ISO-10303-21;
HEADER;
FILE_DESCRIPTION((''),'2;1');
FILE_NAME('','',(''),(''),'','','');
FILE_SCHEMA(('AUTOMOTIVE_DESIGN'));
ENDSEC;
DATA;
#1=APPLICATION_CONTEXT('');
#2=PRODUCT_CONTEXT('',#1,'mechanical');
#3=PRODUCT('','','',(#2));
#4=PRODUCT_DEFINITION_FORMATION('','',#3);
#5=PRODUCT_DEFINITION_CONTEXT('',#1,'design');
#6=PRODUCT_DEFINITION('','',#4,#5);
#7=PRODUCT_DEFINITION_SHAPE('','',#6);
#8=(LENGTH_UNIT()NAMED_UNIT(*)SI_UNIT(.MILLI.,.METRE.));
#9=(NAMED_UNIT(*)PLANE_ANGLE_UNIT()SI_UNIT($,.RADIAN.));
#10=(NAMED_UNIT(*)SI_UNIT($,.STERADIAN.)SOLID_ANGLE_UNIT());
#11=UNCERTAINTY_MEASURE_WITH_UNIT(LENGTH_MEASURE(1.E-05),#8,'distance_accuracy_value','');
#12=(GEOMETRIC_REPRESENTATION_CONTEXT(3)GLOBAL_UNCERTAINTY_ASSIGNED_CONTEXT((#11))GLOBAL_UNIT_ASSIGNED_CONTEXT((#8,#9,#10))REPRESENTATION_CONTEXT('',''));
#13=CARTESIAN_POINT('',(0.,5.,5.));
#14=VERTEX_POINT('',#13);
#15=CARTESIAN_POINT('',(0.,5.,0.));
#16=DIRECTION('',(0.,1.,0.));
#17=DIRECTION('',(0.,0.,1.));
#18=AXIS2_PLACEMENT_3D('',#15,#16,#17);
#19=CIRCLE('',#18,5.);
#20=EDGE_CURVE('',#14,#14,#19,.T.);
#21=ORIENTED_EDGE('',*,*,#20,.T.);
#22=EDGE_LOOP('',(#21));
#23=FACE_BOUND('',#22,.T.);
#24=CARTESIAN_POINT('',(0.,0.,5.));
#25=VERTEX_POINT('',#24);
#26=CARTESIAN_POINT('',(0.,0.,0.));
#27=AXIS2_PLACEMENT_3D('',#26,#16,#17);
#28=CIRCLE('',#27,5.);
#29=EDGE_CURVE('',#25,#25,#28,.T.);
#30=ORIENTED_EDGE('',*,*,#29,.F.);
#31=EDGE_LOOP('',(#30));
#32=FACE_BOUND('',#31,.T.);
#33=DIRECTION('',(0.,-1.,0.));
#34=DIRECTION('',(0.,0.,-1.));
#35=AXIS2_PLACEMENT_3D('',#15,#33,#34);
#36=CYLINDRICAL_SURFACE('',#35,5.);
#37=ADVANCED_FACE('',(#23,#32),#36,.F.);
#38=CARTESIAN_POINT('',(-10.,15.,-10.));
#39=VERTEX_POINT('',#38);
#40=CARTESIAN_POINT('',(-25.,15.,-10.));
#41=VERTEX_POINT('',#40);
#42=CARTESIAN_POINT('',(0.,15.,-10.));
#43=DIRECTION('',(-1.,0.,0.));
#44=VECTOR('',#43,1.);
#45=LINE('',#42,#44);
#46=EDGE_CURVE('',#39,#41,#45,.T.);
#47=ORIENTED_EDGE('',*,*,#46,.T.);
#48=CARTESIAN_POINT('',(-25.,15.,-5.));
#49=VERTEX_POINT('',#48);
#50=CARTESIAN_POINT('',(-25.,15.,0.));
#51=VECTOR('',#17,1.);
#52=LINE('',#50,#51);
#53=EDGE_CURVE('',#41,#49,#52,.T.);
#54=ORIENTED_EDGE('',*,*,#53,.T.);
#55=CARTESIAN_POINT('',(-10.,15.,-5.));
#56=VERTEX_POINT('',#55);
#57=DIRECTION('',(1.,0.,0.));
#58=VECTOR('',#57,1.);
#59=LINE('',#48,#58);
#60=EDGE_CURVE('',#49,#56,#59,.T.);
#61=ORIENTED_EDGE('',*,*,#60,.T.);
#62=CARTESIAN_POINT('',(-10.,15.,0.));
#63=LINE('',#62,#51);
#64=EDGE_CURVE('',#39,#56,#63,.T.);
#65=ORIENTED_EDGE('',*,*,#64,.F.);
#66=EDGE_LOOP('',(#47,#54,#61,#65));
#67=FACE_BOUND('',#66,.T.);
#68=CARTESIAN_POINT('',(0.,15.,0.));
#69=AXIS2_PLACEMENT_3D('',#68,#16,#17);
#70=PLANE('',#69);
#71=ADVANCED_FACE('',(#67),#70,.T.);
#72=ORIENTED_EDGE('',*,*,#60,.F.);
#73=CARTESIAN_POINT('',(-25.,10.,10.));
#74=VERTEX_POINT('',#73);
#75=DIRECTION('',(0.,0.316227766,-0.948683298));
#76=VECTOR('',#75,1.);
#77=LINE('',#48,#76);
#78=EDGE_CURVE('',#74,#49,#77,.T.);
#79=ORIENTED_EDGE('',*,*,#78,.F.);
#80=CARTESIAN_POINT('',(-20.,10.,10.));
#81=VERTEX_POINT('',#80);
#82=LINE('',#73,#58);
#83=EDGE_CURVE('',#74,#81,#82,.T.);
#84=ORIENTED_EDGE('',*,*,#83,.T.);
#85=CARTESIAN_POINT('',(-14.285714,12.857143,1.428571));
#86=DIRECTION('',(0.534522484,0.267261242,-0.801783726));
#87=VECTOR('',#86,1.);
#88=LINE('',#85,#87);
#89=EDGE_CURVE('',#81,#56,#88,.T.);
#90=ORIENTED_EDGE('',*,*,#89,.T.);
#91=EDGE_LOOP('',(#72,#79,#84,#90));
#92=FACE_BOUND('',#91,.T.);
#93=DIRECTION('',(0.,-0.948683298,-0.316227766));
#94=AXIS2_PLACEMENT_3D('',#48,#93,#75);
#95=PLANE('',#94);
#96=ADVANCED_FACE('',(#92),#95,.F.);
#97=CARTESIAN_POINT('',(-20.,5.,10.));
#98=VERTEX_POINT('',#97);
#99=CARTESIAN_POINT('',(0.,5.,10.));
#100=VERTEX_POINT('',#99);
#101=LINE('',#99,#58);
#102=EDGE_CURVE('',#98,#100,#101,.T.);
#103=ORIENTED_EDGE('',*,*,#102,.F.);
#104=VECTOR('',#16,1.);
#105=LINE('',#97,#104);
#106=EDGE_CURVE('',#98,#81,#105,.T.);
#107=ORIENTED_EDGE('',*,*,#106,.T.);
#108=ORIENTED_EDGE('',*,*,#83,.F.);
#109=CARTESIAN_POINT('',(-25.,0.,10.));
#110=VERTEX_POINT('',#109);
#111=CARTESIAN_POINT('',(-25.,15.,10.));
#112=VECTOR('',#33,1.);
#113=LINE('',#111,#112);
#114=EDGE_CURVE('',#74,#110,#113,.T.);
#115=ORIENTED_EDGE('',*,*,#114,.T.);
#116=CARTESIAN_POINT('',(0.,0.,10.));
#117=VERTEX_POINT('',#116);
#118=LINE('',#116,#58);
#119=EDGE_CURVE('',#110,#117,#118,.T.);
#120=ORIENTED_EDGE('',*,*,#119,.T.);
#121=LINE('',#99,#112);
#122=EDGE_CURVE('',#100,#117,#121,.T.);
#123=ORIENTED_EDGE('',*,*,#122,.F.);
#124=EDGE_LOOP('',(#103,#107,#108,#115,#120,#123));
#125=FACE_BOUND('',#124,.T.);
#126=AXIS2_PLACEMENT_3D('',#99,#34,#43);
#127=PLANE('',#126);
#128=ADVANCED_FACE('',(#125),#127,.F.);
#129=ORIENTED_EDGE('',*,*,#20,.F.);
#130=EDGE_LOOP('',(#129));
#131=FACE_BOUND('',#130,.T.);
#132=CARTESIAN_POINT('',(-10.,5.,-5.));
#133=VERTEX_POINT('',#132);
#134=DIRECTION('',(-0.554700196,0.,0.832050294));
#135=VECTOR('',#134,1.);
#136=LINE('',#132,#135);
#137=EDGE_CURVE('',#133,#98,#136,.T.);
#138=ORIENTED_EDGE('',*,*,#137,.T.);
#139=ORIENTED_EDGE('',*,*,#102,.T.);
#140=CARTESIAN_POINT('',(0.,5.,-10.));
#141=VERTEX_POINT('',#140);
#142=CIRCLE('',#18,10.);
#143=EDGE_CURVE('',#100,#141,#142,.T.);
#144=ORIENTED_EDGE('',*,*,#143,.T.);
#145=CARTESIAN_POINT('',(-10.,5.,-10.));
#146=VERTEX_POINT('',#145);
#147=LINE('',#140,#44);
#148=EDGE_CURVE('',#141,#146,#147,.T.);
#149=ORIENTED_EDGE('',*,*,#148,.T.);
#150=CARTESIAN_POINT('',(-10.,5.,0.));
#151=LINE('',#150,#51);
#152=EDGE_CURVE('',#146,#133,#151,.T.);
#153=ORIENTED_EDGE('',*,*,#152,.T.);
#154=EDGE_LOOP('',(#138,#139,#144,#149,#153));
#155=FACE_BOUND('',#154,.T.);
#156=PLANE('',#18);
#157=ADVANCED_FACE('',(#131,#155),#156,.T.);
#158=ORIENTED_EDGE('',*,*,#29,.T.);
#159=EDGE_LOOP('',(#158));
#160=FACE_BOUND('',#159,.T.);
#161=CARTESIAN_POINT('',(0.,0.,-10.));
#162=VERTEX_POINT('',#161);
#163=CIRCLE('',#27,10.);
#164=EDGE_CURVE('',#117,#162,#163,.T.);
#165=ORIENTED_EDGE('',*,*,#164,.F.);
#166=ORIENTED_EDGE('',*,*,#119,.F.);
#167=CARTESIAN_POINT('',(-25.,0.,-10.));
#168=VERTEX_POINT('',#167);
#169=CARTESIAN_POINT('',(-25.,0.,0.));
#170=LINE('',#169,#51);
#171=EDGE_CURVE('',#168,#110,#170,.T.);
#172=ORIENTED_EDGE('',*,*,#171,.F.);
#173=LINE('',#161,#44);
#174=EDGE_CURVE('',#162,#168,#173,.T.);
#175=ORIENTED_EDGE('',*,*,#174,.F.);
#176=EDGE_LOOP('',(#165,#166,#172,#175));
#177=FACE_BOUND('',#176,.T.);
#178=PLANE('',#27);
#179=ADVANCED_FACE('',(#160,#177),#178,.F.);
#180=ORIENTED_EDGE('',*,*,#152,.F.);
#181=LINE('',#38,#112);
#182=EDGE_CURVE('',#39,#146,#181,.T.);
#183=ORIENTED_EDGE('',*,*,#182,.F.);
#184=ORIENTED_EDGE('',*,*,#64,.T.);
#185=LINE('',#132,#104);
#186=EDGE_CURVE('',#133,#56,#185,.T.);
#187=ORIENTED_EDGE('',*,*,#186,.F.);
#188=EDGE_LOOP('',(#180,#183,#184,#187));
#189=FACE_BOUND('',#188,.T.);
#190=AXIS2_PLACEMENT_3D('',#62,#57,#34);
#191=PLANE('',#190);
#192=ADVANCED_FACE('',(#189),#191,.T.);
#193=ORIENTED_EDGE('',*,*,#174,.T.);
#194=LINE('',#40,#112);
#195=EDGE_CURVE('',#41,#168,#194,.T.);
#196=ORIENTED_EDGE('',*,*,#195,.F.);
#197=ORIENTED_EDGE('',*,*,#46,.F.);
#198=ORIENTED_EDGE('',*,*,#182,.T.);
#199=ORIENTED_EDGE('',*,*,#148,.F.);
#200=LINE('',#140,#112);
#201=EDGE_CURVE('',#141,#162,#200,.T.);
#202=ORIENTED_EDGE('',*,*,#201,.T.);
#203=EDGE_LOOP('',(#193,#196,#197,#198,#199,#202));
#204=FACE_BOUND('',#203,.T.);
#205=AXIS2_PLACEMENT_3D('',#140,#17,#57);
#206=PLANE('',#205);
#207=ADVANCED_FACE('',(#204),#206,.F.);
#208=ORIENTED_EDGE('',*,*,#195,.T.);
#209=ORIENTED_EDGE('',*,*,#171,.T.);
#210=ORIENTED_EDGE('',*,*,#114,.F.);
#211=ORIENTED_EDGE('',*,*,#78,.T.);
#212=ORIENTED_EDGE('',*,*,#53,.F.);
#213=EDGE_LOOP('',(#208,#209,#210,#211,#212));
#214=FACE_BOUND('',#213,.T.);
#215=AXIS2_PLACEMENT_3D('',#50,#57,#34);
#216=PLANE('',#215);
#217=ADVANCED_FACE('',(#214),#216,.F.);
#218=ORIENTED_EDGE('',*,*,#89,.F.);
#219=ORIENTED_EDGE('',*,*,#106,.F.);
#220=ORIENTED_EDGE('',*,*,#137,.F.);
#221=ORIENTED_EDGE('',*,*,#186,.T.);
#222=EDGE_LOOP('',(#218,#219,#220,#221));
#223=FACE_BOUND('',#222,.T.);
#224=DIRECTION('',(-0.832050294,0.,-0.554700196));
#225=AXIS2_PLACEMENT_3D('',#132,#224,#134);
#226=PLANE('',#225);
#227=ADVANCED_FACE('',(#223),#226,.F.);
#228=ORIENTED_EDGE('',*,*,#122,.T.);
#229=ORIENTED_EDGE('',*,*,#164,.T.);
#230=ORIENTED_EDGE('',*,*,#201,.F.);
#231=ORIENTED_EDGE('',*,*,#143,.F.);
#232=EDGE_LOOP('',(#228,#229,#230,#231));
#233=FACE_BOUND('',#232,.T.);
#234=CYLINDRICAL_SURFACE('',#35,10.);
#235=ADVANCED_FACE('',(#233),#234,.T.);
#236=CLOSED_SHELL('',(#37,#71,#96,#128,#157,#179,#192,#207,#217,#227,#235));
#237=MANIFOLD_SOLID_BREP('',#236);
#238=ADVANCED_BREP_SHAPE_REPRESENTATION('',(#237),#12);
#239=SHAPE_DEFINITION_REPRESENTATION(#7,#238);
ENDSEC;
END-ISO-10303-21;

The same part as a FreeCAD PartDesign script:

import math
import FreeCAD as App
import Part
import Sketcher
from FreeCAD import Vector
Q = App.Units.Quantity

doc = App.newDocument("Part")
body = doc.addObject("PartDesign::Body", "Body")

sketch1 = body.newObject("Sketcher::SketchObject", "Sketch")
sketch1.AttachmentSupport = (doc.getObject("XZ_Plane"), [""])
sketch1.MapMode = "FlatFace"
sketch1.addGeometry([
    Part.ArcOfCircle(Part.Circle(Vector(0, 0, 0), Vector(0, 0, 1), 10), math.radians(-90), math.radians(90)),
    Part.LineSegment(Vector(0, -10, 0), Vector(-10, -10, 0)),
    Part.LineSegment(Vector(-10, -10, 0), Vector(-10, 10, 0)),
    Part.LineSegment(Vector(-10, 10, 0), Vector(0, 10, 0)),
    Part.Circle(Vector(0, 0, 0), Vector(0, 0, 1), 5),
], False)
sketch1.addConstraint([
    Sketcher.Constraint("Tangent", 0, 1, 1, 1),
    Sketcher.Constraint("Coincident", 1, 2, 2, 1),
    Sketcher.Constraint("Coincident", 2, 2, 3, 1),
    Sketcher.Constraint("Tangent", 3, 2, 0, 2),
    Sketcher.Constraint("Horizontal", 1),
    Sketcher.Constraint("Vertical", 2),
    Sketcher.Constraint("Horizontal", 3),
    Sketcher.Constraint("Coincident", 0, 3, -1, 1),
    Sketcher.Constraint("Coincident", 4, 3, -1, 1),
    Sketcher.Constraint("Diameter", 4, Q("10 mm")),
    Sketcher.Constraint("Radius", 0, Q("10 mm")),
    Sketcher.Constraint("DistanceX", 1, 2, 1, 1, Q("10 mm")),
])
pad1 = body.newObject("PartDesign::Pad", "Pad")
pad1.Profile = sketch1
pad1.Length = 5
pad1.Reversed = True

sketch2 = body.newObject("Sketcher::SketchObject", "Sketch001")
sketch2.AttachmentSupport = (doc.getObject("XZ_Plane"), [""])
sketch2.MapMode = "FlatFace"
sketch2.addGeometry([
    Part.LineSegment(Vector(-25, -10, 0), Vector(-25, 10, 0)),
    Part.LineSegment(Vector(-25, 10, 0), Vector(-10, 10, 0)),
    Part.LineSegment(Vector(-10, 10, 0), Vector(-10, -10, 0)),
    Part.LineSegment(Vector(-10, -10, 0), Vector(-25, -10, 0)),
], False)
sketch2.addConstraint([
    Sketcher.Constraint("Coincident", 0, 2, 1, 1),
    Sketcher.Constraint("Coincident", 1, 2, 2, 1),
    Sketcher.Constraint("Coincident", 2, 2, 3, 1),
    Sketcher.Constraint("Coincident", 3, 2, 0, 1),
    Sketcher.Constraint("Vertical", 0),
    Sketcher.Constraint("Horizontal", 1),
    Sketcher.Constraint("Vertical", 2),
    Sketcher.Constraint("Horizontal", 3),
    Sketcher.Constraint("DistanceX", 1, 1, 1, 2, Q("15 mm")),
    Sketcher.Constraint("DistanceY", 0, 1, 0, 2, Q("20 mm")),
    Sketcher.Constraint("DistanceX", 0, 2, -1, 1, Q("25 mm")),
    Sketcher.Constraint("DistanceY", -1, 1, 0, 2, Q("10 mm")),
])
pad2 = body.newObject("PartDesign::Pad", "Pad001")
pad2.Profile = sketch2
pad2.Length = 15
pad2.Reversed = True

sketch3 = body.newObject("Sketcher::SketchObject", "Sketch002")
sketch3.AttachmentSupport = (doc.getObject("YZ_Plane"), [""])
sketch3.MapMode = "FlatFace"
sketch3.AttachmentOffset = App.Placement(Vector(0, 0, -10), App.Rotation())
sketch3.addGeometry([
    Part.LineSegment(Vector(10, 10, 0), Vector(15, -5, 0)),
    Part.LineSegment(Vector(15, -5, 0), Vector(15, 10, 0)),
    Part.LineSegment(Vector(15, 10, 0), Vector(10, 10, 0)),
], False)
sketch3.addConstraint([
    Sketcher.Constraint("Coincident", 0, 2, 1, 1),
    Sketcher.Constraint("Coincident", 1, 2, 2, 1),
    Sketcher.Constraint("Coincident", 2, 2, 0, 1),
    Sketcher.Constraint("Vertical", 1),
    Sketcher.Constraint("Horizontal", 2),
    Sketcher.Constraint("DistanceX", 2, 2, 2, 1, Q("5 mm")),
    Sketcher.Constraint("DistanceY", 1, 1, 1, 2, Q("15 mm")),
    Sketcher.Constraint("DistanceX", -1, 1, 0, 2, Q("15 mm")),
    Sketcher.Constraint("DistanceY", 0, 2, -1, 1, Q("5 mm")),
])
pocket1 = body.newObject("PartDesign::Pocket", "Pocket")
pocket1.Profile = sketch3
pocket1.Length = 15

sketch4 = body.newObject("Sketcher::SketchObject", "Sketch003")
sketch4.AttachmentSupport = (doc.getObject("XZ_Plane"), [""])
sketch4.MapMode = "FlatFace"
sketch4.AttachmentOffset = App.Placement(Vector(0, 0, -15), App.Rotation())
sketch4.addGeometry([
    Part.LineSegment(Vector(-10, -5, 0), Vector(-20, 10, 0)),
    Part.LineSegment(Vector(-20, 10, 0), Vector(-10, 10, 0)),
    Part.LineSegment(Vector(-10, 10, 0), Vector(-10, -5, 0)),
], False)
sketch4.addConstraint([
    Sketcher.Constraint("Coincident", 0, 2, 1, 1),
    Sketcher.Constraint("Coincident", 1, 2, 2, 1),
    Sketcher.Constraint("Coincident", 2, 2, 0, 1),
    Sketcher.Constraint("Horizontal", 1),
    Sketcher.Constraint("Vertical", 2),
    Sketcher.Constraint("DistanceX", 1, 1, 1, 2, Q("10 mm")),
    Sketcher.Constraint("DistanceY", 2, 2, 2, 1, Q("15 mm")),
    Sketcher.Constraint("DistanceX", 0, 2, -1, 1, Q("20 mm")),
    Sketcher.Constraint("DistanceY", -1, 1, 0, 2, Q("10 mm")),
])
pocket2 = body.newObject("PartDesign::Pocket", "Pocket001")
pocket2.Profile = sketch4
pocket2.Length = 10
pocket2.Reversed = True

doc.recompute()
